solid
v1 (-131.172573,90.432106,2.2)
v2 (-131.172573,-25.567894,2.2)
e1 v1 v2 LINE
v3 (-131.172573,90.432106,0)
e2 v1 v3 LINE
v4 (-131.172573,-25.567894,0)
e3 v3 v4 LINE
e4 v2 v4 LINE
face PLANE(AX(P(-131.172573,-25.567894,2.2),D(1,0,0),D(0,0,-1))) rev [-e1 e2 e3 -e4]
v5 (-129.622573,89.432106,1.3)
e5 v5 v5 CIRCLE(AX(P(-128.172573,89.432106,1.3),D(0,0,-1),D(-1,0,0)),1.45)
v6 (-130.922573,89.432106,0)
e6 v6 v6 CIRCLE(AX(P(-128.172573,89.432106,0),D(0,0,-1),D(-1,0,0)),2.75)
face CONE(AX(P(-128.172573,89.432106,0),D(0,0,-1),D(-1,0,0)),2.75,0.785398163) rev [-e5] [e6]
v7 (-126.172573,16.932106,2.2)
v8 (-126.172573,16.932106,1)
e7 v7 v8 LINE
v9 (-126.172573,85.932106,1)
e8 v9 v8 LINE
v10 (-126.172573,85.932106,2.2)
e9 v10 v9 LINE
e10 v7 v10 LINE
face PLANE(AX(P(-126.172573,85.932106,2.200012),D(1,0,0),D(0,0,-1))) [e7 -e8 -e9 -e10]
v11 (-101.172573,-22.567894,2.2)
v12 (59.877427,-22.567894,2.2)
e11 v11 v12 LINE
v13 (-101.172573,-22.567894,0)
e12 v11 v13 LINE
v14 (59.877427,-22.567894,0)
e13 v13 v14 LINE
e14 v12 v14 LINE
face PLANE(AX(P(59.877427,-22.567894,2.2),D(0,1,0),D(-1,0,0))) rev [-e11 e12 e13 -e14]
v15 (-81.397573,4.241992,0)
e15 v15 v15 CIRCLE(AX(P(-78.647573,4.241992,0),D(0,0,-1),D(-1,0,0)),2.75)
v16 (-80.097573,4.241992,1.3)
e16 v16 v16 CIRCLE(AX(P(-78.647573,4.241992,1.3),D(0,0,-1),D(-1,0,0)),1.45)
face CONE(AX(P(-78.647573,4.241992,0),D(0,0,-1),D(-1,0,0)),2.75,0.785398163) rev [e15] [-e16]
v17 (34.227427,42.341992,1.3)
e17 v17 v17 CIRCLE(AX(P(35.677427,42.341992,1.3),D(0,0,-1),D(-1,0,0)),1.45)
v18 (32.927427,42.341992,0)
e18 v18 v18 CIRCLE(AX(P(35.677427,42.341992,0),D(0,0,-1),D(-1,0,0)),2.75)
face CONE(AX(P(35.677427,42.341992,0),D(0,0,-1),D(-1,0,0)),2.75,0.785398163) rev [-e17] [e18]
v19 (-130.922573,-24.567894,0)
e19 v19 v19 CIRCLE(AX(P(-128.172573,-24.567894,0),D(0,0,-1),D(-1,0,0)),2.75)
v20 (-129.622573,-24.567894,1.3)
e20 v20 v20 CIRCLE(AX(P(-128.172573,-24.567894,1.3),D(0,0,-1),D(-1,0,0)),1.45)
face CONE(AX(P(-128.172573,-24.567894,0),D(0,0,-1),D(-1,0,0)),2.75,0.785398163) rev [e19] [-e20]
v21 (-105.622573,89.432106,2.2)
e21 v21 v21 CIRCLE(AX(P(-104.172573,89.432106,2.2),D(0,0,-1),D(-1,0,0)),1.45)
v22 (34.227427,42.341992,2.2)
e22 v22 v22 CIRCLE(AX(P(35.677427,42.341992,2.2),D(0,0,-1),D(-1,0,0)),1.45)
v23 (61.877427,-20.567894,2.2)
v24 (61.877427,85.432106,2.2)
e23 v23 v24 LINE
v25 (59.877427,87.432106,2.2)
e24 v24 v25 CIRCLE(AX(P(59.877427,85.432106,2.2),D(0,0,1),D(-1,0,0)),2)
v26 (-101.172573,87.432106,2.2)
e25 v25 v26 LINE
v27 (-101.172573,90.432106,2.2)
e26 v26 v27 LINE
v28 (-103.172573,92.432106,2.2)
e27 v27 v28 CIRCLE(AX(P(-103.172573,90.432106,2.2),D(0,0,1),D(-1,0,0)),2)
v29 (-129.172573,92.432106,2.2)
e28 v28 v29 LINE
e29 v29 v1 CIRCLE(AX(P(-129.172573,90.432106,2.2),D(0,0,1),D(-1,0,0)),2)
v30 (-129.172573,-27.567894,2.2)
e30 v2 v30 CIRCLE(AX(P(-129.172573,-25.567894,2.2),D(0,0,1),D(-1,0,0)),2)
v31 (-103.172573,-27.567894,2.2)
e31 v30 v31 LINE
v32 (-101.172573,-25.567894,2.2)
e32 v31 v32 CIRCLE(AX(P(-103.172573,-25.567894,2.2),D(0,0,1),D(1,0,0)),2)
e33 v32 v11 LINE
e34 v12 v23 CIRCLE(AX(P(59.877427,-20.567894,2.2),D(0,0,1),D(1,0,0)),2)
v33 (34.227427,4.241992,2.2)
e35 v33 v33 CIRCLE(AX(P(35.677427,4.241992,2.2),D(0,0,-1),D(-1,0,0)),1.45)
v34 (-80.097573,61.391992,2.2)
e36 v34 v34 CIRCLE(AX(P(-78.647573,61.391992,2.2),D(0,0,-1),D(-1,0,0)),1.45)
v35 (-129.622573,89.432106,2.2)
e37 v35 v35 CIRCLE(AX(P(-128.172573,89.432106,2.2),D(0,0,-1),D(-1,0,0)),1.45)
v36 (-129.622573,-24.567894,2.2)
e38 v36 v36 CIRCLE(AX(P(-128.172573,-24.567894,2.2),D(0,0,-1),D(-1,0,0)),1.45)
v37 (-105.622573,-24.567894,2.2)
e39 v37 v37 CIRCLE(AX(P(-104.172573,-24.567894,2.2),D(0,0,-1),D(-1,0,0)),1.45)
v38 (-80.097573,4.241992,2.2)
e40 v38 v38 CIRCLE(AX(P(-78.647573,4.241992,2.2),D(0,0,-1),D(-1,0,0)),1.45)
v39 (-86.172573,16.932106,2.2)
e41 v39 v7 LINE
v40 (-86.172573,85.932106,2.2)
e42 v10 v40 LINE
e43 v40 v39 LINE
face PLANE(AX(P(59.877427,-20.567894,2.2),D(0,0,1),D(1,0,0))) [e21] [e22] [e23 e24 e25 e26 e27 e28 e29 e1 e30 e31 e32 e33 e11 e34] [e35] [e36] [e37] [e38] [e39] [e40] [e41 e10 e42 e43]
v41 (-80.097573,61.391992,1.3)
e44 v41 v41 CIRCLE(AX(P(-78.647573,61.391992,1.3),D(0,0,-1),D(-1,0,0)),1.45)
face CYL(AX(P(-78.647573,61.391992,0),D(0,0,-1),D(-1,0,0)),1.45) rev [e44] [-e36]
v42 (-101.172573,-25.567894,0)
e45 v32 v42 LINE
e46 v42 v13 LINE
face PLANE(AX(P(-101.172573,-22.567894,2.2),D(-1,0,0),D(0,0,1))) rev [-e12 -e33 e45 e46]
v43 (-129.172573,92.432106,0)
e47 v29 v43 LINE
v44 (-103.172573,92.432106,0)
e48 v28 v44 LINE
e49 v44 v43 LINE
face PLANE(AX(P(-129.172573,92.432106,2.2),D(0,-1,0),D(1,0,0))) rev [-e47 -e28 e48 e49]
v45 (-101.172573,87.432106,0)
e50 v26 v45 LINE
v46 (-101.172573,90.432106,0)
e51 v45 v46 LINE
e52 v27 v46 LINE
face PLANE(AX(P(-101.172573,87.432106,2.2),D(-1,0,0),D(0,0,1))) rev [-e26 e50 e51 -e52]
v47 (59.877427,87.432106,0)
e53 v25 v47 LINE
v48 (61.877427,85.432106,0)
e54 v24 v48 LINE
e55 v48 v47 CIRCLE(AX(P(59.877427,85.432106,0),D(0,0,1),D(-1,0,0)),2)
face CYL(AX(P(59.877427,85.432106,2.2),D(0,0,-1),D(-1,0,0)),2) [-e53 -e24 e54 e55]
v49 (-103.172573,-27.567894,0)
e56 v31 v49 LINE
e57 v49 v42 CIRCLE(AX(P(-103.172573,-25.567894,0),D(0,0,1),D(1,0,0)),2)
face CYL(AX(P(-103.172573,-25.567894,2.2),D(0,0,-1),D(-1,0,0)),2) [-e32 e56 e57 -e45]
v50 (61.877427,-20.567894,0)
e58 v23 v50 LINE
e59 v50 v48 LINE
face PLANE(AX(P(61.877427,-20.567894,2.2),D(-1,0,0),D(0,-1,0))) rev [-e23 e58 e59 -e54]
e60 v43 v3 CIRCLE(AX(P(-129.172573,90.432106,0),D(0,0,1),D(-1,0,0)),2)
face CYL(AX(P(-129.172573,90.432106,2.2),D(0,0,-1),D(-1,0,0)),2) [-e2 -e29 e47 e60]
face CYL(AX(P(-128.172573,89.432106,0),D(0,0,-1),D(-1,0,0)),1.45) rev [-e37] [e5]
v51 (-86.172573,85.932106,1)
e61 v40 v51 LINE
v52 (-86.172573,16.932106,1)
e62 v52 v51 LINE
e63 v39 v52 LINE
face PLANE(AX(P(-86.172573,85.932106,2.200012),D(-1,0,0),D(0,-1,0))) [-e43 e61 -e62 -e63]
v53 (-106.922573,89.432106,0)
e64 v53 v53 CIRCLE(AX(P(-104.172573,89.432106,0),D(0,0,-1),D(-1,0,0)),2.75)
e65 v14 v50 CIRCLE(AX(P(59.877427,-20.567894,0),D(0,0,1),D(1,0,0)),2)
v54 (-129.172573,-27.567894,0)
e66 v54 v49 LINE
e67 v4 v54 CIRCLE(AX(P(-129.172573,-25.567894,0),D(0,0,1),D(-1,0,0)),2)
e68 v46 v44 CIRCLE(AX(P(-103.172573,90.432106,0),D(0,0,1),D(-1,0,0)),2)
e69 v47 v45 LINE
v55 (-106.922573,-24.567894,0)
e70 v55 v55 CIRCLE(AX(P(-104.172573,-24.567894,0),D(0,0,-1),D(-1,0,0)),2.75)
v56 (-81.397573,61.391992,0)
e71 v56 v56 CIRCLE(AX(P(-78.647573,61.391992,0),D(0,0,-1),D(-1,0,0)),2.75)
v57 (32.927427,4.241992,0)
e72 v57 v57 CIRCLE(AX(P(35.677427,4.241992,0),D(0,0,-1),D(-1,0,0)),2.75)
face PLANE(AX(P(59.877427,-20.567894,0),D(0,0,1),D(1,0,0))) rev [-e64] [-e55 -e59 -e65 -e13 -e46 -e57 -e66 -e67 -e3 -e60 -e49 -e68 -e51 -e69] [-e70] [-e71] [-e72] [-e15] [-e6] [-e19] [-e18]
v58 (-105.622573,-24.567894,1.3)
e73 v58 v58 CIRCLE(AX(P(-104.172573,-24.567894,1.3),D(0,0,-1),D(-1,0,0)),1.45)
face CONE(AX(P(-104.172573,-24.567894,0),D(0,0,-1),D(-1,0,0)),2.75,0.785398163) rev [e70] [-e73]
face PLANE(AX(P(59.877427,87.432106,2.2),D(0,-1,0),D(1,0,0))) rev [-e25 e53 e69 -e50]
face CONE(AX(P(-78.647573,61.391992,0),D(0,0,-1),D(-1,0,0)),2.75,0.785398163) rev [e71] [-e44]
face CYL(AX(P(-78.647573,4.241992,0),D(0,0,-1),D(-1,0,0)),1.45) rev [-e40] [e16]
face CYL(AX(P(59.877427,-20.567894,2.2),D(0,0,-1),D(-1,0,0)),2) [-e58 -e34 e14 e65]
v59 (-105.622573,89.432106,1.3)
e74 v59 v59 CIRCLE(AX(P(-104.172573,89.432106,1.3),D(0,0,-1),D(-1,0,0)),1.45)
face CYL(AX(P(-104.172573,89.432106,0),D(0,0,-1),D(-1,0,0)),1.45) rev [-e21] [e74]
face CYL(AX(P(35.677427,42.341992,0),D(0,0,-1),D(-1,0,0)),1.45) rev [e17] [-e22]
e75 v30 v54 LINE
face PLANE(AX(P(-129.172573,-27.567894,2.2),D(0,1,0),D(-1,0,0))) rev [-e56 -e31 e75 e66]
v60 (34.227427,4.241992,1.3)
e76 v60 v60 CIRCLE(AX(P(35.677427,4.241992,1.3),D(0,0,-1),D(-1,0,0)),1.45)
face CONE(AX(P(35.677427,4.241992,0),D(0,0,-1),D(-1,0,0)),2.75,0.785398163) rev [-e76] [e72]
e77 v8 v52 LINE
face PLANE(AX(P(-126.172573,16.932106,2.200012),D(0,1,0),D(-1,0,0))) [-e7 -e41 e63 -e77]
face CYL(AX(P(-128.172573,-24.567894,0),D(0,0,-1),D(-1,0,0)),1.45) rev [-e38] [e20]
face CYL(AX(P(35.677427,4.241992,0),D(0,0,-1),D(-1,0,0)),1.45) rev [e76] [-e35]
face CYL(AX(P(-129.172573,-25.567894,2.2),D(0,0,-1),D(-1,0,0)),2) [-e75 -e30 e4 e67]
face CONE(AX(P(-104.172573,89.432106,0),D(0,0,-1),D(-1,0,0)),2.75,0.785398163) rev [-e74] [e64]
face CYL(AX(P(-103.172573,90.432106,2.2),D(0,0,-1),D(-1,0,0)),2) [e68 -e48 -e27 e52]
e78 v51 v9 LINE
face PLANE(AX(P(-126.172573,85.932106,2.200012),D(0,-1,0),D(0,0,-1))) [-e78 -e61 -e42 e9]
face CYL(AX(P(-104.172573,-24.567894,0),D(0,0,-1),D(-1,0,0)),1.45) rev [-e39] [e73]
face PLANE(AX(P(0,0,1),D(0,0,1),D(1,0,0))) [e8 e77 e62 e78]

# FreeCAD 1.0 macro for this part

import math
import FreeCAD as App
import Part
import Sketcher
Q = App.Units.Quantity


def add_polygon(sketch, points):
    """Adds a closed chain of lines whose ends are joined by coincident constraints."""
    first, n = sketch.GeometryCount, len(points)
    for a, b in zip(points, points[1:] + points[:1]):
        sketch.addGeometry(Part.LineSegment(App.Vector(*a, 0), App.Vector(*b, 0)), False)
    for i in range(n):
        sketch.addConstraint(Sketcher.Constraint("Coincident", first + i, 2, first + (i + 1) % n, 1))

doc = App.newDocument("Part")
body = doc.addObject("PartDesign::Body", "Body")

sketch1 = body.newObject("Sketcher::SketchObject", "Sketch")
sketch1.AttachmentSupport = (doc.getObject("XY_Plane"), [""])
sketch1.MapMode = "FlatFace"
sketch1.addGeometry(Part.LineSegment(App.Vector(-129.2, -27.6, 0), App.Vector(-103.2, -27.6, 0)), False)
sketch1.addGeometry(Part.ArcOfCircle(Part.Circle(App.Vector(-103.2, -25.6, 0), App.Vector(0, 0, 1), 2), math.radians(-90), math.radians(0)), False)
sketch1.addGeometry(Part.LineSegment(App.Vector(-101.2, -25.6, 0), App.Vector(-101.2, -22.6, 0)), False)
sketch1.addGeometry(Part.LineSegment(App.Vector(-101.2, -22.6, 0), App.Vector(59.9, -22.6, 0)), False)
sketch1.addGeometry(Part.ArcOfCircle(Part.Circle(App.Vector(59.9, -20.6, 0), App.Vector(0, 0, 1), 2), math.radians(-90), math.radians(0)), False)
sketch1.addGeometry(Part.LineSegment(App.Vector(61.9, -20.6, 0), App.Vector(61.9, 85.4, 0)), False)
sketch1.addGeometry(Part.ArcOfCircle(Part.Circle(App.Vector(59.9, 85.4, 0), App.Vector(0, 0, 1), 2), math.radians(0), math.radians(90)), False)
sketch1.addGeometry(Part.LineSegment(App.Vector(59.9, 87.4, 0), App.Vector(-101.2, 87.4, 0)), False)
sketch1.addGeometry(Part.LineSegment(App.Vector(-101.2, 87.4, 0), App.Vector(-101.2, 90.4, 0)), False)
sketch1.addGeometry(Part.ArcOfCircle(Part.Circle(App.Vector(-103.2, 90.4, 0), App.Vector(0, 0, 1), 2), math.radians(0), math.radians(90)), False)
sketch1.addGeometry(Part.LineSegment(App.Vector(-103.2, 92.4, 0), App.Vector(-129.2, 92.4, 0)), False)
sketch1.addGeometry(Part.ArcOfCircle(Part.Circle(App.Vector(-129.2, 90.4, 0), App.Vector(0, 0, 1), 2), math.radians(90), math.radians(180)), False)
sketch1.addGeometry(Part.LineSegment(App.Vector(-131.2, 90.4, 0), App.Vector(-131.2, -25.6, 0)), False)
sketch1.addGeometry(Part.ArcOfCircle(Part.Circle(App.Vector(-129.2, -25.6, 0), App.Vector(0, 0, 1), 2), math.radians(180), math.radians(270)), False)
sketch1.addConstraint(Sketcher.Constraint("Tangent", 0, 2, 1, 1))
sketch1.addConstraint(Sketcher.Constraint("Tangent", 1, 2, 2, 1))
sketch1.addConstraint(Sketcher.Constraint("Coincident", 2, 2, 3, 1))
sketch1.addConstraint(Sketcher.Constraint("Tangent", 3, 2, 4, 1))
sketch1.addConstraint(Sketcher.Constraint("Tangent", 4, 2, 5, 1))
sketch1.addConstraint(Sketcher.Constraint("Tangent", 5, 2, 6, 1))
sketch1.addConstraint(Sketcher.Constraint("Tangent", 6, 2, 7, 1))
sketch1.addConstraint(Sketcher.Constraint("Coincident", 7, 2, 8, 1))
sketch1.addConstraint(Sketcher.Constraint("Tangent", 8, 2, 9, 1))
sketch1.addConstraint(Sketcher.Constraint("Tangent", 9, 2, 10, 1))
sketch1.addConstraint(Sketcher.Constraint("Tangent", 10, 2, 11, 1))
sketch1.addConstraint(Sketcher.Constraint("Tangent", 11, 2, 12, 1))
sketch1.addConstraint(Sketcher.Constraint("Tangent", 12, 2, 13, 1))
sketch1.addConstraint(Sketcher.Constraint("Tangent", 13, 2, 0, 1))
sketch1.addConstraint(Sketcher.Constraint("Horizontal", 0))
sketch1.addConstraint(Sketcher.Constraint("Vertical", 2))
sketch1.addConstraint(Sketcher.Constraint("Horizontal", 3))
sketch1.addConstraint(Sketcher.Constraint("Vertical", 5))
sketch1.addConstraint(Sketcher.Constraint("Horizontal", 7))
sketch1.addConstraint(Sketcher.Constraint("Vertical", 8))
sketch1.addConstraint(Sketcher.Constraint("Horizontal", 10))
sketch1.addConstraint(Sketcher.Constraint("Vertical", 12))
sketch1.addConstraint(Sketcher.Constraint("Equal", 1, 4))
sketch1.addConstraint(Sketcher.Constraint("Equal", 4, 6))
sketch1.addConstraint(Sketcher.Constraint("Equal", 6, 9))
sketch1.addConstraint(Sketcher.Constraint("Equal", 9, 11))
sketch1.addConstraint(Sketcher.Constraint("Equal", 11, 13))
sketch1.addConstraint(Sketcher.Constraint("Vertical", 1, 3, 9, 3))
sketch1.addConstraint(Sketcher.Constraint("Equal", 2, 8))
sketch1.addConstraint(Sketcher.Constraint("Radius", 1, 2.0))
sketch1.addConstraint(Sketcher.Constraint("DistanceX", 0, 1, 0, 2, 26.0))
sketch1.addConstraint(Sketcher.Constraint("DistanceY", 2, 1, 2, 2, 3.0))
sketch1.addConstraint(Sketcher.Constraint("DistanceY", 5, 1, 5, 2, 106.0))
sketch1.addConstraint(Sketcher.Constraint("DistanceX", 3, 1, 3, 2, 161.05))
sketch1.addConstraint(Sketcher.Constraint("DistanceX", 1, 3, -1, 1, 103.172573))
sketch1.addConstraint(Sketcher.Constraint("DistanceY", 1, 3, -1, 1, 25.567894))
pad1 = body.newObject("PartDesign::Pad", "Pad")
pad1.Profile = sketch1
pad1.Length = 2.2

sketch2 = body.newObject("Sketcher::SketchObject", "Sketch001")
sketch2.AttachmentSupport = (doc.getObject("YZ_Plane"), [""])
sketch2.MapMode = "FlatFace"
sketch2.AttachmentOffset = App.Placement(App.Vector(0, 0, -78.647573), App.Rotation())
add_polygon(sketch2, [(61.4, 2.2), (61.4, 0), (64.1, 0), (62.8, 1.3), (62.8, 2.2)])
sketch2.addGeometry(Part.LineSegment(App.Vector(61.4, 0, 0), App.Vector(61.4, 2.2, 0)), True)
sketch2.addConstraint(Sketcher.Constraint("Vertical", 0))
sketch2.addConstraint(Sketcher.Constraint("Horizontal", 1))
sketch2.addConstraint(Sketcher.Constraint("Vertical", 3))
sketch2.addConstraint(Sketcher.Constraint("Horizontal", 4))
sketch2.addConstraint(Sketcher.Constraint("Vertical", 5))
sketch2.addConstraint(Sketcher.Constraint("Coincident", 5, 1, 0, 2))
sketch2.addConstraint(Sketcher.Constraint("PointOnObject", 0, 2, -1))
sketch2.addConstraint(Sketcher.Constraint("Horizontal", 3, 2, 5, 2))
sketch2.addConstraint(Sketcher.Constraint("Angle", 2, Q("135 deg")))
sketch2.addConstraint(Sketcher.Constraint("DistanceY", 0, 2, 0, 1, 2.2))
sketch2.addConstraint(Sketcher.Constraint("DistanceY", 3, 1, 3, 2, 0.9))
sketch2.addConstraint(Sketcher.Constraint("DistanceX", 1, 1, 1, 2, 2.75))
sketch2.addConstraint(Sketcher.Constraint("DistanceX", -1, 1, 0, 2, 61.391992))
groove = body.newObject("PartDesign::Groove", "Groove")
groove.Profile = sketch2
groove.ReferenceAxis = (sketch2, ["Axis0"])
groove.Angle = 360
doc.recompute()

datumline = body.newObject("PartDesign::Line", "DatumLine")
datumline.Placement = App.Placement(App.Vector(0, 0, 0), App.Rotation(App.Vector(0, 0, 1), App.Vector(0.986399753, -0.164364009, 0)))
linearpattern = body.newObject("PartDesign::LinearPattern", "LinearPattern")
linearpattern.Originals = [groove]
linearpattern.Direction = (datumline, [""])
linearpattern.Mode = "offset"
linearpattern.Offset = 115.901286
linearpattern.Occurrences = 2
body.Tip = linearpattern
doc.recompute()

datumline2 = body.newObject("PartDesign::Line", "DatumLine001")
datumline2.Placement = App.Placement(App.Vector(0, 0, 0), App.Rotation(App.Vector(0, 0, 1), App.Vector(0.894466307, -0.447135355, 0)))
linearpattern2 = body.newObject("PartDesign::LinearPattern", "LinearPattern001")
linearpattern2.Originals = [groove]
linearpattern2.Direction = (datumline2, [""])
linearpattern2.Mode = "offset"
linearpattern2.Offset = 127.813646
linearpattern2.Occurrences = 2
body.Tip = linearpattern2
doc.recompute()

linearpattern3 = body.newObject("PartDesign::LinearPattern", "LinearPattern002")
linearpattern3.Originals = [groove]
linearpattern3.Direction = (doc.getObject("Y_Axis"), [""])
linearpattern3.Mode = "offset"
linearpattern3.Offset = 57.15
linearpattern3.Occurrences = 2
linearpattern3.Reversed = True
body.Tip = linearpattern3

sketch3 = body.newObject("Sketcher::SketchObject", "Sketch002")
sketch3.AttachmentSupport = (doc.getObject("YZ_Plane"), [""])
sketch3.MapMode = "FlatFace"
sketch3.AttachmentOffset = App.Placement(App.Vector(0, 0, -104.172573), App.Rotation())
add_polygon(sketch3, [(89.4, 2.2), (89.4, 0), (92.2, 0), (90.9, 1.3), (90.9, 2.2)])
sketch3.addGeometry(Part.LineSegment(App.Vector(89.4, 0, 0), App.Vector(89.4, 2.2, 0)), True)
sketch3.addConstraint(Sketcher.Constraint("Vertical", 0))
sketch3.addConstraint(Sketcher.Constraint("Horizontal", 1))
sketch3.addConstraint(Sketcher.Constraint("Vertical", 3))
sketch3.addConstraint(Sketcher.Constraint("Horizontal", 4))
sketch3.addConstraint(Sketcher.Constraint("Vertical", 5))
sketch3.addConstraint(Sketcher.Constraint("Coincident", 5, 1, 0, 2))
sketch3.addConstraint(Sketcher.Constraint("PointOnObject", 0, 2, -1))
sketch3.addConstraint(Sketcher.Constraint("Horizontal", 3, 2, 5, 2))
sketch3.addConstraint(Sketcher.Constraint("Angle", 2, Q("135 deg")))
sketch3.addConstraint(Sketcher.Constraint("DistanceY", 0, 2, 0, 1, 2.2))
sketch3.addConstraint(Sketcher.Constraint("DistanceY", 3, 1, 3, 2, 0.9))
sketch3.addConstraint(Sketcher.Constraint("DistanceX", 1, 1, 1, 2, 2.75))
sketch3.addConstraint(Sketcher.Constraint("DistanceX", -1, 1, 0, 2, 89.432106))
groove2 = body.newObject("PartDesign::Groove", "Groove001")
groove2.Profile = sketch3
groove2.ReferenceAxis = (sketch3, ["Axis0"])
groove2.Angle = 360
doc.recompute()

linearpattern4 = body.newObject("PartDesign::LinearPattern", "LinearPattern003")
linearpattern4.Originals = [groove2]
linearpattern4.Direction = (doc.getObject("X_Axis"), [""])
linearpattern4.Mode = "offset"
linearpattern4.Offset = 24
linearpattern4.Occurrences = 2
linearpattern4.Reversed = True
body.Tip = linearpattern4
doc.recompute()

linearpattern5 = body.newObject("PartDesign::LinearPattern", "LinearPattern004")
linearpattern5.Originals = [groove2]
linearpattern5.Direction = (doc.getObject("Y_Axis"), [""])
linearpattern5.Mode = "offset"
linearpattern5.Offset = 114
linearpattern5.Occurrences = 2
linearpattern5.Reversed = True
body.Tip = linearpattern5
doc.recompute()

datumline3 = body.newObject("PartDesign::Line", "DatumLine002")
datumline3.Placement = App.Placement(App.Vector(0, 0, 0), App.Rotation(App.Vector(0, 0, 1), App.Vector(-0.206010481, -0.978549785, 0)))
linearpattern6 = body.newObject("PartDesign::LinearPattern", "LinearPattern005")
linearpattern6.Originals = [groove2]
linearpattern6.Direction = (datumline3, [""])
linearpattern6.Mode = "offset"
linearpattern6.Offset = 116.498927
linearpattern6.Occurrences = 2
body.Tip = linearpattern6

sketch4 = body.newObject("Sketcher::SketchObject", "Sketch003")
sketch4.AttachmentSupport = (doc.getObject("XY_Plane"), [""])
sketch4.MapMode = "FlatFace"
sketch4.AttachmentOffset = App.Placement(App.Vector(0, 0, 2.2), App.Rotation())
add_polygon(sketch4, [(-126, 86), (-126, 17), (-86, 17), (-86, 86)])
sketch4.addConstraint(Sketcher.Constraint("Vertical", 0))
sketch4.addConstraint(Sketcher.Constraint("Horizontal", 1))
sketch4.addConstraint(Sketcher.Constraint("Vertical", 2))
sketch4.addConstraint(Sketcher.Constraint("Horizontal", 3))
sketch4.addConstraint(Sketcher.Constraint("DistanceX", 1, 1, 1, 2, 40.0))
sketch4.addConstraint(Sketcher.Constraint("DistanceY", 0, 2, 0, 1, 69.0))
sketch4.addConstraint(Sketcher.Constraint("DistanceX", 0, 2, -1, 1, 126.172573))
sketch4.addConstraint(Sketcher.Constraint("DistanceY", -1, 1, 0, 2, 16.932106))
pocket1 = body.newObject("PartDesign::Pocket", "Pocket")
pocket1.Profile = sketch4
pocket1.Type = "TwoLengths"
pocket1.Length = 161.482953
pocket1.Length2 = 1.2
pocket1.Reversed = True

doc.recompute()
